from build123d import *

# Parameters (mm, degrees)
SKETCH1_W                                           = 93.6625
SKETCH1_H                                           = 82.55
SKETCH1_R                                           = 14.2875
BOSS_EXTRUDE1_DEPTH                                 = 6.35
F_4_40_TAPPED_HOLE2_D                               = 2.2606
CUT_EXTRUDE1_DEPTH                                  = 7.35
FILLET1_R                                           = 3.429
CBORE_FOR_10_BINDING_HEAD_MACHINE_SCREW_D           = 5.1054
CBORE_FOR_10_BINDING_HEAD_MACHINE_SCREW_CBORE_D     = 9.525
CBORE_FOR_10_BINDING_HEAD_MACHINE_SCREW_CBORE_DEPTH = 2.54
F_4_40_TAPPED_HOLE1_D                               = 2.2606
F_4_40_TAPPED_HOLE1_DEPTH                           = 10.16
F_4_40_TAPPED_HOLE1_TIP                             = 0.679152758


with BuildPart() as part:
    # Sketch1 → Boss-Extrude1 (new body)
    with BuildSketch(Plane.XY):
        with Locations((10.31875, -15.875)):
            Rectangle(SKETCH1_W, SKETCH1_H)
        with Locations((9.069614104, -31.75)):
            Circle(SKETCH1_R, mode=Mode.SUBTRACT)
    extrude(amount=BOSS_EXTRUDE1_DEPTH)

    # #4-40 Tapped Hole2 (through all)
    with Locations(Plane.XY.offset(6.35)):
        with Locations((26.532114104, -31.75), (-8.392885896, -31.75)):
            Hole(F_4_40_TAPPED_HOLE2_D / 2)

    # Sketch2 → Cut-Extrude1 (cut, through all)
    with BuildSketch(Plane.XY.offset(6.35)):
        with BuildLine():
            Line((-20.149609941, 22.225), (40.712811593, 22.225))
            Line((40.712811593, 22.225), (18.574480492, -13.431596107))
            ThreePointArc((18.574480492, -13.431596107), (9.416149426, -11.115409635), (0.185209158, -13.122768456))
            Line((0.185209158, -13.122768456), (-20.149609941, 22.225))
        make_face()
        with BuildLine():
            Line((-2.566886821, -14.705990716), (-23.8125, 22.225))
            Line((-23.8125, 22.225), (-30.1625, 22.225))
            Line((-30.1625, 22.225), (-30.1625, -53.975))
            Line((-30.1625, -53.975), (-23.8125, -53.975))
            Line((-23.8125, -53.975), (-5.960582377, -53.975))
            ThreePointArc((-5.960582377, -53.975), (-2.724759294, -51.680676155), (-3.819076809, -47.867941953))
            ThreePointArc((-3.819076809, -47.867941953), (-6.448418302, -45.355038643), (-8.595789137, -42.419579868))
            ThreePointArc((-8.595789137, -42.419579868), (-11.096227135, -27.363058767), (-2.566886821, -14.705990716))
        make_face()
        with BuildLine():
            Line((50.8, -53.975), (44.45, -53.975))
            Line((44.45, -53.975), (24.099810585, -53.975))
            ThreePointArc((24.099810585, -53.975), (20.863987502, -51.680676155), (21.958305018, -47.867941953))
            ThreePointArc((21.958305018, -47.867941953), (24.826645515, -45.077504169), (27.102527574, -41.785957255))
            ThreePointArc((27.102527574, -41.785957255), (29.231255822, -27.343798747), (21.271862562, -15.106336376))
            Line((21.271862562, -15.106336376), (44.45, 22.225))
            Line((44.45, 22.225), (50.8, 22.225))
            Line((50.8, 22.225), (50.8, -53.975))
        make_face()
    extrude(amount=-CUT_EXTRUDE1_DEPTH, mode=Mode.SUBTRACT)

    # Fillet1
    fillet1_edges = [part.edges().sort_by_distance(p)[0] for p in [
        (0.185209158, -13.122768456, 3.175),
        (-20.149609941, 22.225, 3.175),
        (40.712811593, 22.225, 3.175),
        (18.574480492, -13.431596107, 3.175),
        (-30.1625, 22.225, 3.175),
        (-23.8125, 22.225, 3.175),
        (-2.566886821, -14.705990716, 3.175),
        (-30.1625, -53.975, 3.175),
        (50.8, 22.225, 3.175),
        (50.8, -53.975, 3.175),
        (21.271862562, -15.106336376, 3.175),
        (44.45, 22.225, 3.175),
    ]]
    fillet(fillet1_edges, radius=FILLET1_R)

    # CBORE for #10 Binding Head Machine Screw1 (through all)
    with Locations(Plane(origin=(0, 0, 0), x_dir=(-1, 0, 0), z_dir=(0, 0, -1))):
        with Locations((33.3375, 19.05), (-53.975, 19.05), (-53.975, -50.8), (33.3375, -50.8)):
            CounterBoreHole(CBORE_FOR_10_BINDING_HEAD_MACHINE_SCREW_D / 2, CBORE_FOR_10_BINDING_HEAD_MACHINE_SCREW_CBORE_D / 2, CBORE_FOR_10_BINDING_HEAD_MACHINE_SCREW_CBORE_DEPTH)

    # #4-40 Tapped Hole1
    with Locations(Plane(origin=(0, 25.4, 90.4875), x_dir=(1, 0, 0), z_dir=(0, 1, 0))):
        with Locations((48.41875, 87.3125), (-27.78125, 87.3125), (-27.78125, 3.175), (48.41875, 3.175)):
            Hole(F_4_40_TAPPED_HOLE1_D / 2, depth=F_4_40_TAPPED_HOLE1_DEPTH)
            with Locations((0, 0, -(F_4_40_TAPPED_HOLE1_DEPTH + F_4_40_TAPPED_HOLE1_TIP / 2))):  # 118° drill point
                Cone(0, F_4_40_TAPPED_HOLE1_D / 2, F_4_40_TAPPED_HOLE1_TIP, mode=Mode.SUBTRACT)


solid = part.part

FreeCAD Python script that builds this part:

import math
import FreeCAD as App
import Part
import Sketcher
from FreeCAD import Vector
Q = App.Units.Quantity


def edges_at(feature, points):
    """Names of the edges that pass closest to the given points."""
    edges = feature.Shape.Edges
    near = lambda p: min(range(len(edges)), key=lambda i: edges[i].distToShape(Part.Vertex(*p))[0])
    return sorted({f"Edge{near(p) + 1}" for p in points})


def add_polygon(sketch, points):
    """Adds a closed chain of lines whose ends are joined by coincident constraints."""
    first, n = sketch.GeometryCount, len(points)
    for a, b in zip(points, points[1:] + points[:1]):
        sketch.addGeometry(Part.LineSegment(App.Vector(*a, 0), App.Vector(*b, 0)), False)
    for i in range(n):
        sketch.addConstraint(Sketcher.Constraint("Coincident", first + i, 2, first + (i + 1) % n, 1))

doc = App.newDocument("Part")
body = doc.addObject("PartDesign::Body", "Body")

sketch1 = body.newObject("Sketcher::SketchObject", "Sketch")
sketch1.AttachmentSupport = (doc.getObject("XY_Plane"), [""])
sketch1.MapMode = "FlatFace"
add_polygon(sketch1, [(-36.5125, 25.4), (-36.5125, -57.15), (57.15, -57.15), (57.15, 25.4)])
sketch1.addGeometry(Part.Circle(Vector(9.069614, -31.75, 0), Vector(0, 0, 1), 14.2875), False)
sketch1.addConstraint(Sketcher.Constraint("Vertical", 0))
sketch1.addConstraint(Sketcher.Constraint("Horizontal", 1))
sketch1.addConstraint(Sketcher.Constraint("Vertical", 2))
sketch1.addConstraint(Sketcher.Constraint("Horizontal", 3))
sketch1.addConstraint(Sketcher.Constraint("Diameter", 4, Q("1.125 in")))
sketch1.addConstraint(Sketcher.Constraint("DistanceY", -1, 1, 2, 2, Q("1 in")))
sketch1.addConstraint(Sketcher.Constraint("DistanceY", 0, 2, 4, 3, Q("1 in")))
sketch1.addConstraint(Sketcher.Constraint("DistanceY", 0, 2, 0, 1, Q("3.25 in")))
sketch1.addConstraint(Sketcher.Constraint("DistanceX", 1, 1, 1, 2, Q("3.6875 in")))
sketch1.addConstraint(Sketcher.Constraint("DistanceX", -1, 1, 1, 2, Q("2.25 in")))
sketch1.addConstraint(Sketcher.Constraint("DistanceX", -1, 1, 4, 3, Q("9.069614 mm")))
pad1 = body.newObject("PartDesign::Pad", "Pad")
pad1.Profile = sketch1
pad1.Length = Q("0.25 in")

sketch2 = body.newObject("Sketcher::SketchObject", "Sketch001")
sketch2.AttachmentSupport = (doc.getObject("XY_Plane"), [""])
sketch2.MapMode = "FlatFace"
sketch2.AttachmentOffset = App.Placement(Vector(0, 0, 0.25 * 25.4), App.Rotation())
sketch2.addGeometry(Part.Circle(Vector(26.532114, -31.75, 0), Vector(0, 0, 1), 1.1303), False)
sketch2.addGeometry(Part.Circle(Vector(-8.392886, -31.75, 0), Vector(0, 0, 1), 1.1303), False)
sketch2.addConstraint(Sketcher.Constraint("Equal", 0, 1))
sketch2.addConstraint(Sketcher.Constraint("Horizontal", 0, 3, 1, 3))
sketch2.addConstraint(Sketcher.Constraint("Diameter", 0, Q("0.089 in")))
sketch2.addConstraint(Sketcher.Constraint("DistanceY", 0, 3, -1, 1, Q("1.25 in")))
sketch2.addConstraint(Sketcher.Constraint("DistanceX", 1, 3, 0, 3, Q("1.375 in")))
sketch2.addConstraint(Sketcher.Constraint("DistanceX", -1, 1, 0, 3, Q("26.532114 mm")))
doc.recompute()
hole = body.newObject("PartDesign::Hole", "Hole")
hole.Profile = sketch2
hole.ThreadType = "None"
hole.Diameter = Q("0.089 in")
hole.DepthType = "ThroughAll"

sketch3 = body.newObject("Sketcher::SketchObject", "Sketch002")
sketch3.AttachmentSupport = (doc.getObject("XY_Plane"), [""])
sketch3.MapMode = "FlatFace"
sketch3.AttachmentOffset = App.Placement(Vector(0, 0, 0.25 * 25.4), App.Rotation())
sketch3.addGeometry(Part.LineSegment(Vector(40.712812, 22.225, 0), Vector(-20.14961, 22.225, 0)), False)
sketch3.addGeometry(Part.LineSegment(Vector(-20.14961, 22.225, 0), Vector(0.185209, -13.122768, 0)), False)
sketch3.addGeometry(Part.ArcOfCircle(Part.Circle(Vector(9.069614, -31.75, 0), Vector(0, 0, 1), 20.6375), math.radians(62.576565), math.radians(115.499176)), False)
sketch3.addGeometry(Part.LineSegment(Vector(18.57448, -13.431596, 0), Vector(40.712812, 22.225, 0)), False)
sketch3.addGeometry(Part.LineSegment(Vector(-2.566887, -14.705991, 0), Vector(-23.8125, 22.225, 0)), False)
sketch3.addGeometry(Part.LineSegment(Vector(-23.8125, 22.225, 0), Vector(-30.1625, 22.225, 0)), False)
sketch3.addGeometry(Part.LineSegment(Vector(-30.1625, 22.225, 0), Vector(-30.1625, -53.975, 0)), False)
sketch3.addGeometry(Part.LineSegment(Vector(-30.1625, -53.975, 0), Vector(-5.960582, -53.975, 0)), False)
sketch3.addGeometry(Part.ArcOfCircle(Part.Circle(Vector(-5.960582, -50.546, 0), Vector(0, 0, 1), 3.429), math.radians(-90), math.radians(51.352468)), False)
sketch3.addGeometry(Part.ArcOfCircle(Part.Circle(Vector(9.069614, -31.75, 0), Vector(0, 0, 1), 20.6375), math.radians(-148.868793), math.radians(-128.647532)), False)
sketch3.addGeometry(Part.ArcOfCircle(Part.Circle(Vector(9.069614, -31.75, 0), Vector(0, 0, 1), 20.6375), math.radians(124.322628), math.radians(211.131207)), False)
sketch3.addGeometry(Part.LineSegment(Vector(24.099811, -53.975, 0), Vector(50.8, -53.975, 0)), False)
sketch3.addGeometry(Part.LineSegment(Vector(50.8, -53.975, 0), Vector(50.8, 22.225, 0)), False)
sketch3.addGeometry(Part.LineSegment(Vector(50.8, 22.225, 0), Vector(44.45, 22.225, 0)), False)
sketch3.addGeometry(Part.LineSegment(Vector(44.45, 22.225, 0), Vector(21.271863, -15.106336, 0)), False)
sketch3.addGeometry(Part.ArcOfCircle(Part.Circle(Vector(9.069614, -31.75, 0), Vector(0, 0, 1), 20.6375), math.radians(-29.097493), math.radians(53.753113)), False)
sketch3.addGeometry(Part.ArcOfCircle(Part.Circle(Vector(9.069614, -31.75, 0), Vector(0, 0, 1), 20.6375), math.radians(-51.352468), math.radians(-29.097493)), False)
sketch3.addGeometry(Part.ArcOfCircle(Part.Circle(Vector(24.099811, -50.546, 0), Vector(0, 0, 1), 3.429), math.radians(128.647532), math.radians(270)), False)
sketch3.addConstraint(Sketcher.Constraint("Coincident", 0, 2, 1, 1))
sketch3.addConstraint(Sketcher.Constraint("Coincident", 1, 2, 2, 2))
sketch3.addConstraint(Sketcher.Constraint("Coincident", 2, 1, 3, 1))
sketch3.addConstraint(Sketcher.Constraint("Coincident", 3, 2, 0, 1))
sketch3.addConstraint(Sketcher.Constraint("Coincident", 4, 2, 5, 1))
sketch3.addConstraint(Sketcher.Constraint("Coincident", 5, 2, 6, 1))
sketch3.addConstraint(Sketcher.Constraint("Coincident", 6, 2, 7, 1))
sketch3.addConstraint(Sketcher.Constraint("Tangent", 7, 2, 8, 1))
sketch3.addConstraint(Sketcher.Constraint("Tangent", 8, 2, 9, 2))
sketch3.addConstraint(Sketcher.Constraint("Tangent", 9, 1, 10, 2))
sketch3.addConstraint(Sketcher.Constraint("Coincident", 10, 1, 4, 1))
sketch3.addConstraint(Sketcher.Constraint("Coincident", 11, 2, 12, 1))
sketch3.addConstraint(Sketcher.Constraint("Coincident", 12, 2, 13, 1))
sketch3.addConstraint(Sketcher.Constraint("Coincident", 13, 2, 14, 1))
sketch3.addConstraint(Sketcher.Constraint("Coincident", 14, 2, 15, 2))
sketch3.addConstraint(Sketcher.Constraint("Tangent", 15, 1, 16, 2))
sketch3.addConstraint(Sketcher.Constraint("Tangent", 16, 1, 17, 1))
sketch3.addConstraint(Sketcher.Constraint("Tangent", 17, 2, 11, 1))
sketch3.addConstraint(Sketcher.Constraint("Horizontal", 0))
sketch3.addConstraint(Sketcher.Constraint("Horizontal", 5))
sketch3.addConstraint(Sketcher.Constraint("Vertical", 6))
sketch3.addConstraint(Sketcher.Constraint("Horizontal", 7))
sketch3.addConstraint(Sketcher.Constraint("Horizontal", 11))
sketch3.addConstraint(Sketcher.Constraint("Vertical", 12))
sketch3.addConstraint(Sketcher.Constraint("Horizontal", 13))
sketch3.addConstraint(Sketcher.Constraint("Coincident", 9, 3, 2, 3))
sketch3.addConstraint(Sketcher.Constraint("Coincident", 15, 3, 2, 3))
sketch3.addConstraint(Sketcher.Constraint("Equal", 2, 9))
sketch3.addConstraint(Sketcher.Constraint("Equal", 9, 10))
sketch3.addConstraint(Sketcher.Constraint("Equal", 10, 15))
sketch3.addConstraint(Sketcher.Constraint("Equal", 15, 16))
sketch3.addConstraint(Sketcher.Constraint("Equal", 8, 17))
sketch3.addConstraint(Sketcher.Constraint("Parallel", 1, 4))
sketch3.addConstraint(Sketcher.Constraint("Parallel", 3, 14))
sketch3.addConstraint(Sketcher.Constraint("Horizontal", 8, 3, 17, 3))
sketch3.addConstraint(Sketcher.Constraint("Horizontal", 3, 2, 4, 2))
sketch3.addConstraint(Sketcher.Constraint("Horizontal", 5, 2, 12, 2))
sketch3.addConstraint(Sketcher.Constraint("Equal", 5, 13))
sketch3.addConstraint(Sketcher.Constraint("DistanceY", 6, 2, 6, 1, Q("3 in")))
sketch3.addConstraint(Sketcher.Constraint("DistanceX", -1, 1, 11, 2, Q("2 in")))
sketch3.addConstraint(Sketcher.Constraint("Radius", 2, Q("0.8125 in")))
sketch3.addConstraint(Sketcher.Constraint("Radius", 8, Q("0.135 in")))
sketch3.addConstraint(Sketcher.Constraint("DistanceX", 5, 2, 5, 1, Q("0.25 in")))
sketch3.addConstraint(Sketcher.Constraint("DistanceY", 2, 3, -1, 1, Q("1.25 in")))
sketch3.addConstraint(Sketcher.Constraint("DistanceY", 8, 3, -1, 1, Q("1.99 in")))
sketch3.addConstraint(Sketcher.Constraint("DistanceX", 4, 2, -1, 1, Q("0.9375 in")))
sketch3.addConstraint(Sketcher.Constraint("DistanceX", -1, 1, 16, 1, Q("0.8645002 in")))
sketch3.addConstraint(Sketcher.Constraint("DistanceX", 0, 2, 0, 1, Q("60.862422 mm")))
sketch3.addConstraint(Sketcher.Constraint("DistanceX", 10, 1, 2, 3, Q("11.636501 mm")))
sketch3.addConstraint(Sketcher.Constraint("Distance", 3, Q("41.97021 mm")))
sketch3.addConstraint(Sketcher.Constraint("DistanceX", 0, 2, -1, 1, Q("20.14961 mm")))
sketch3.addConstraint(Sketcher.Constraint("DistanceX", 9, 1, -1, 1, Q("8.595789 mm")))
sketch3.addConstraint(Sketcher.Constraint("DistanceX", -1, 1, 15, 1, Q("27.102528 mm")))
pocket1 = body.newObject("PartDesign::Pocket", "Pocket")
pocket1.Profile = sketch3
pocket1.Type = "ThroughAll"
doc.recompute()

fillet = body.newObject("PartDesign::Fillet", "Fillet")
fillet.Base = (pocket1, edges_at(pocket1, [
    (0.185, -13.123, 3.175),
    (-20.15, 22.225, 3.175),
    (40.713, 22.225, 3.175),
    (18.574, -13.432, 3.175),
    (-30.163, 22.225, 3.175),
    (-23.812, 22.225, 3.175),
    (-2.567, -14.706, 3.175),
    (-30.163, -53.975, 3.175),
    (50.8, 22.225, 3.175),
    (50.8, -53.975, 3.175),
    (21.272, -15.106, 3.175),
    (44.45, 22.225, 3.175),
]))
fillet.Radius = Q("0.135 in")

sketch4 = body.newObject("Sketcher::SketchObject", "Sketch003")
sketch4.AttachmentSupport = (doc.getObject("XY_Plane"), [""])
sketch4.MapMode = "FlatFace"
sketch4.addGeometry(Part.Circle(Vector(-33.3375, 19.05, 0), Vector(0, 0, 1), 2.5527), False)
sketch4.addGeometry(Part.Circle(Vector(53.975, 19.05, 0), Vector(0, 0, 1), 2.5527), False)
sketch4.addGeometry(Part.Circle(Vector(53.975, -50.8, 0), Vector(0, 0, 1), 2.5527), False)
sketch4.addGeometry(Part.Circle(Vector(-33.3375, -50.8, 0), Vector(0, 0, 1), 2.5527), False)
sketch4.addConstraint(Sketcher.Constraint("Equal", 0, 1))
sketch4.addConstraint(Sketcher.Constraint("Equal", 1, 2))
sketch4.addConstraint(Sketcher.Constraint("Equal", 2, 3))
sketch4.addConstraint(Sketcher.Constraint("Horizontal", 0, 3, 1, 3))
sketch4.addConstraint(Sketcher.Constraint("Horizontal", 2, 3, 3, 3))
sketch4.addConstraint(Sketcher.Constraint("Vertical", 1, 3, 2, 3))
sketch4.addConstraint(Sketcher.Constraint("Vertical", 0, 3, 3, 3))
sketch4.addConstraint(Sketcher.Constraint("Diameter", 0, Q("0.201 in")))
sketch4.addConstraint(Sketcher.Constraint("DistanceY", 2, 3, -1, 1, Q("2 in")))
sketch4.addConstraint(Sketcher.Constraint("DistanceY", -1, 1, 0, 3, Q("0.75 in")))
sketch4.addConstraint(Sketcher.Constraint("DistanceX", 0, 3, -1, 1, Q("1.3125 in")))
sketch4.addConstraint(Sketcher.Constraint("DistanceX", -1, 1, 1, 3, Q("2.125 in")))
doc.recompute()
hole2 = body.newObject("PartDesign::Hole", "Hole001")
hole2.Profile = sketch4
hole2.ThreadType = "None"
hole2.Diameter = Q("0.201 in")
hole2.DepthType = "ThroughAll"
hole2.HoleCutType = "Counterbore"
hole2.HoleCutDiameter = Q("0.375 in")
hole2.HoleCutDepth = Q("0.1 in")
hole2.Reversed = True

sketch5 = body.newObject("Sketcher::SketchObject", "Sketch004")
sketch5.AttachmentSupport = (doc.getObject("XZ_Plane"), [""])
sketch5.MapMode = "FlatFace"
sketch5.AttachmentOffset = App.Placement(Vector(0, 0, -1 * 25.4), App.Rotation())
sketch5.addGeometry(Part.Circle(Vector(48.41875, 3.175, 0), Vector(0, 0, 1), 1.1303), False)
sketch5.addGeometry(Part.Circle(Vector(-27.78125, 3.175, 0), Vector(0, 0, 1), 1.1303), False)
sketch5.addGeometry(Part.Circle(Vector(-27.78125, 87.3125, 0), Vector(0, 0, 1), 1.1303), False)
sketch5.addGeometry(Part.Circle(Vector(48.41875, 87.3125, 0), Vector(0, 0, 1), 1.1303), False)
sketch5.addConstraint(Sketcher.Constraint("Equal", 0, 1))
sketch5.addConstraint(Sketcher.Constraint("Equal", 1, 2))
sketch5.addConstraint(Sketcher.Constraint("Equal", 2, 3))
sketch5.addConstraint(Sketcher.Constraint("Horizontal", 0, 3, 1, 3))
sketch5.addConstraint(Sketcher.Constraint("Horizontal", 2, 3, 3, 3))
sketch5.addConstraint(Sketcher.Constraint("Vertical", 1, 3, 2, 3))
sketch5.addConstraint(Sketcher.Constraint("Vertical", 0, 3, 3, 3))
sketch5.addConstraint(Sketcher.Constraint("Diameter", 0, Q("0.089 in")))
sketch5.addConstraint(Sketcher.Constraint("DistanceX", 1, 3, 0, 3, Q("3 in")))
sketch5.addConstraint(Sketcher.Constraint("DistanceX", -1, 1, 0, 3, Q("1.90625 in")))
sketch5.addConstraint(Sketcher.Constraint("DistanceY", -1, 1, 0, 3, Q("0.125 in")))
sketch5.addConstraint(Sketcher.Constraint("DistanceY", -1, 1, 2, 3, Q("3.4375 in")))
doc.recompute()
hole3 = body.newObject("PartDesign::Hole", "Hole002")
hole3.Profile = sketch5
hole3.ThreadType = "None"
hole3.Diameter = Q("0.089 in")
hole3.DepthType = "Dimension"
hole3.Depth = Q("0.4 in")
hole3.DrillPoint = "Angled"
hole3.DrillPointAngle = 118
hole3.Reversed = True

doc.recompute()
